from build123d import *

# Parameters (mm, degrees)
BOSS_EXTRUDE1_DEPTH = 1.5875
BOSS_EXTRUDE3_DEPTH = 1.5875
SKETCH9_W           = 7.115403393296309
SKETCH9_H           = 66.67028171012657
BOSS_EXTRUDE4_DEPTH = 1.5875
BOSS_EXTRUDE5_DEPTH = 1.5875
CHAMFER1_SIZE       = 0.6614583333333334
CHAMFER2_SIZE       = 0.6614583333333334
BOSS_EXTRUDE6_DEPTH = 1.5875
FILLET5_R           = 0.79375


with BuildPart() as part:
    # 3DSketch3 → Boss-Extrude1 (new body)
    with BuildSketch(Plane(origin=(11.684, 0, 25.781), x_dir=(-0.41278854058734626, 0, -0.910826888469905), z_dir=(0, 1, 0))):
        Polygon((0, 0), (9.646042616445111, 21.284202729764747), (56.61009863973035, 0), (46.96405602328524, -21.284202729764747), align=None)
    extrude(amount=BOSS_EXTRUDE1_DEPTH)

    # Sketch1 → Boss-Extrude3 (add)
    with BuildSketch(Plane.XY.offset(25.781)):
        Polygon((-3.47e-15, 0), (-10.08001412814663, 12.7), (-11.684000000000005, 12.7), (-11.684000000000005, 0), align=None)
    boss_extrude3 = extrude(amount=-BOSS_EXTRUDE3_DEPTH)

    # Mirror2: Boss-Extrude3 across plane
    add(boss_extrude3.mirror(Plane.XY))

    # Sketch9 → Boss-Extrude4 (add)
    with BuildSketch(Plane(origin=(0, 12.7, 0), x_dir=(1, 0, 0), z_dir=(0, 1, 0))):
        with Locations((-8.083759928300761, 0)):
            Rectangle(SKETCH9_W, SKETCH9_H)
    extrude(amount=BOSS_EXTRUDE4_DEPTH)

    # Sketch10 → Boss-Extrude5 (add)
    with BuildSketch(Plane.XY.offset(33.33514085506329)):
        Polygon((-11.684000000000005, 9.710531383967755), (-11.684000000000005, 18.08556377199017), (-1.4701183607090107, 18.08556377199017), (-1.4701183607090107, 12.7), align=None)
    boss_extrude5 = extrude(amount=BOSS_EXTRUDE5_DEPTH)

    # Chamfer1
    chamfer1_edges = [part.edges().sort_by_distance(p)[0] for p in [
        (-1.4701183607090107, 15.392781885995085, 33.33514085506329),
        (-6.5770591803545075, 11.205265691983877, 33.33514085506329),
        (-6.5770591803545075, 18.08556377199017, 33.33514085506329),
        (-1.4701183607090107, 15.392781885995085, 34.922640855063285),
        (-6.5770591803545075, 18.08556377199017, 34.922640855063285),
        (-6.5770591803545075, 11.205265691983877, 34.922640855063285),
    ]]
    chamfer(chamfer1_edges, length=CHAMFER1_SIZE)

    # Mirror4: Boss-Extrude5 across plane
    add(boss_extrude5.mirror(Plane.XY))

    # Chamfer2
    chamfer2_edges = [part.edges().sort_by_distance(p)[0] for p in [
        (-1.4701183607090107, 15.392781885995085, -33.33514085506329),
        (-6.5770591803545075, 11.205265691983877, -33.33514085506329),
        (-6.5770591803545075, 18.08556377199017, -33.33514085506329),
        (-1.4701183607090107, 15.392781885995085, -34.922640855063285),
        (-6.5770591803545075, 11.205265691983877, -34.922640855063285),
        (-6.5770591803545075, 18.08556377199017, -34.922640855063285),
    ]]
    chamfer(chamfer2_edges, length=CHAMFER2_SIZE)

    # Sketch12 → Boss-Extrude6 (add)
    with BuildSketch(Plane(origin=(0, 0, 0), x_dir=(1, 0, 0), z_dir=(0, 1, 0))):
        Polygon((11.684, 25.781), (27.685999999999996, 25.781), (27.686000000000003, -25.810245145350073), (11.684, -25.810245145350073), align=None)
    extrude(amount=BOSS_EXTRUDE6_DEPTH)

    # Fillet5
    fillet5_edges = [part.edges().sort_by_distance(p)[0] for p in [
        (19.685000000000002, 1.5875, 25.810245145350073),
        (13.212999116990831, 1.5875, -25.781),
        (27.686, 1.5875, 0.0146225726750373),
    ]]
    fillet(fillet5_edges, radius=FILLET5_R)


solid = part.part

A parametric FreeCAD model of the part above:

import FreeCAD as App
import Part
import Sketcher

V = App.Vector
Q = App.Units.Quantity


def edges_at(feature, points):
    """Names of the edges that pass closest to the given points."""
    edges = feature.Shape.Edges
    near = lambda p: min(range(len(edges)), key=lambda i: edges[i].distToShape(Part.Vertex(*p))[0])
    return sorted({f"Edge{near(p) + 1}" for p in points})

doc = App.newDocument("Part")
params = doc.addObject("Spreadsheet::Sheet", "Params")
for row, (alias, value) in enumerate([
    ("sketch1_width", "0.92 in"),
    ("sketch1_height", "2.03 in"),
    ("pad1_length", "0.0625 in"),
    ("sketch2_height", "0.5 in"),
    ("sketch2_width", "0.46 in"),
    ("pad2_length", "0.0625 in"),
    ("pad3_length", "0.0625 in"),
    ("pad4_length", "0.0625 in"),
    ("chamfer_size", "0.661458 mm"),
    ("chamfer2_size", "0.661458 mm"),
    ("sketch5_width", "0.63 in"),
    ("pad5_length", "0.0625 in"),
    ("fillet_radius", "0.03125 in"),
], start=1):
    params.set(f"A{row}", alias)
    params.set(f"B{row}", "=" + value)
    params.setAlias(f"B{row}", alias)

body = doc.addObject("PartDesign::Body", "Body")

sketch1 = body.newObject("Sketcher::SketchObject", "Sketch")
sketch1.AttachmentSupport = (doc.getObject("XZ_Plane"), [""])
sketch1.MapMode = "FlatFace"
sketch1.addGeometry([
    Part.LineSegment(V(-11.684, 25.781, 0), V(11.684, 25.781, 0)),
    Part.LineSegment(V(11.684, 25.781, 0), V(11.684, -25.781, 0)),
    Part.LineSegment(V(11.684, -25.781, 0), V(-11.684, -25.781, 0)),
    Part.LineSegment(V(-11.684, -25.781, 0), V(-11.684, 25.781, 0)),
], False)
sketch1.addConstraint([
    Sketcher.Constraint("Coincident", 0, 2, 1, 1),
    Sketcher.Constraint("Coincident", 1, 2, 2, 1),
    Sketcher.Constraint("Coincident", 2, 2, 3, 1),
    Sketcher.Constraint("Coincident", 3, 2, 0, 1),
    Sketcher.Constraint("Horizontal", 0),
    Sketcher.Constraint("Vertical", 1),
    Sketcher.Constraint("Horizontal", 2),
    Sketcher.Constraint("Vertical", 3),
    Sketcher.Constraint("Symmetric", 0, 2, 2, 2, -1, 1),
    Sketcher.Constraint("DistanceX", 0, 1, 0, 2, Q("0.92 in")),
    Sketcher.Constraint("DistanceY", 1, 2, 1, 1, Q("2.03 in")),
])
sketch1.setExpression("Constraints[9]", "Params.sketch1_width")
sketch1.setExpression("Constraints[10]", "Params.sketch1_height")
pad1 = body.newObject("PartDesign::Pad", "Pad")
pad1.Profile = sketch1
pad1.setExpression("Length", "Params.pad1_length")
pad1.Reversed = True

sketch2 = body.newObject("Sketcher::SketchObject", "Sketch001")
sketch2.AttachmentSupport = (doc.getObject("XY_Plane"), [""])
sketch2.MapMode = "FlatFace"
sketch2.AttachmentOffset = App.Placement(V(0, 0, 1.015 * 25.4), App.Rotation())
sketch2.addGeometry([
    Part.LineSegment(V(0, 0, 0), V(-10.080014, 12.7, 0)),
    Part.LineSegment(V(-10.080014, 12.7, 0), V(-11.684, 12.7, 0)),
    Part.LineSegment(V(-11.684, 12.7, 0), V(-11.684, 0, 0)),
    Part.LineSegment(V(-11.684, 0, 0), V(0, 0, 0)),
], False)
sketch2.addConstraint([
    Sketcher.Constraint("Coincident", 0, 2, 1, 1),
    Sketcher.Constraint("Coincident", 1, 2, 2, 1),
    Sketcher.Constraint("Coincident", 2, 2, 3, 1),
    Sketcher.Constraint("Coincident", 3, 2, 0, 1),
    Sketcher.Constraint("Horizontal", 1),
    Sketcher.Constraint("Vertical", 2),
    Sketcher.Constraint("Horizontal", 3),
    Sketcher.Constraint("Coincident", 3, 2, -1, 1),
    Sketcher.Constraint("DistanceY", 2, 2, 2, 1, Q("0.5 in")),
    Sketcher.Constraint("DistanceX", 3, 1, 3, 2, Q("0.46 in")),
    Sketcher.Constraint("Distance", 0, Q("16.214089 mm")),
])
sketch2.setExpression("Constraints[8]", "Params.sketch2_height")
sketch2.setExpression("Constraints[9]", "Params.sketch2_width")
pad2 = body.newObject("PartDesign::Pad", "Pad001")
pad2.Profile = sketch2
pad2.setExpression("Length", "Params.pad2_length")
pad2.Reversed = True
doc.recompute()

mirrored = body.newObject("PartDesign::Mirrored", "Mirrored")
mirrored.Originals = [pad2]
mirrored.MirrorPlane = (doc.getObject("XY_Plane"), [""])
body.Tip = mirrored

sketch3 = body.newObject("Sketcher::SketchObject", "Sketch002")
sketch3.AttachmentSupport = (doc.getObject("XZ_Plane"), [""])
sketch3.MapMode = "FlatFace"
sketch3.AttachmentOffset = App.Placement(V(0, 0, -0.5 * 25.4), App.Rotation())
sketch3.addGeometry([
    Part.LineSegment(V(-11.641462, -33.335141, 0), V(-11.641462, 33.335141, 0)),
    Part.LineSegment(V(-11.641462, 33.335141, 0), V(-4.526058, 33.335141, 0)),
    Part.LineSegment(V(-4.526058, 33.335141, 0), V(-4.526058, -33.335141, 0)),
    Part.LineSegment(V(-4.526058, -33.335141, 0), V(-11.641462, -33.335141, 0)),
], False)
sketch3.addConstraint([
    Sketcher.Constraint("Coincident", 0, 2, 1, 1),
    Sketcher.Constraint("Coincident", 1, 2, 2, 1),
    Sketcher.Constraint("Coincident", 2, 2, 3, 1),
    Sketcher.Constraint("Coincident", 3, 2, 0, 1),
    Sketcher.Constraint("Vertical", 0),
    Sketcher.Constraint("Horizontal", 1),
    Sketcher.Constraint("Vertical", 2),
    Sketcher.Constraint("Horizontal", 3),
    Sketcher.Constraint("DistanceY", 0, 1, 0, 2, Q("66.670282 mm")),
    Sketcher.Constraint("DistanceX", 1, 1, 1, 2, Q("7.115403 mm")),
    Sketcher.Constraint("DistanceX", 0, 2, -1, 1, Q("11.641462 mm")),
    Sketcher.Constraint("DistanceY", -1, 1, 0, 2, Q("33.335141 mm")),
])
pad3 = body.newObject("PartDesign::Pad", "Pad002")
pad3.Profile = sketch3
pad3.setExpression("Length", "Params.pad3_length")
pad3.Reversed = True

sketch4 = body.newObject("Sketcher::SketchObject", "Sketch003")
sketch4.AttachmentSupport = (doc.getObject("XY_Plane"), [""])
sketch4.MapMode = "FlatFace"
sketch4.AttachmentOffset = App.Placement(V(0, 0, 33.335141), App.Rotation())
sketch4.addGeometry([
    Part.LineSegment(V(-11.684, 18.085564, 0), V(-11.684, 9.710531, 0)),
    Part.LineSegment(V(-11.684, 9.710531, 0), V(-1.470118, 12.7, 0)),
    Part.LineSegment(V(-1.470118, 12.7, 0), V(-1.470118, 18.085564, 0)),
    Part.LineSegment(V(-1.470118, 18.085564, 0), V(-11.684, 18.085564, 0)),
], False)
sketch4.addConstraint([
    Sketcher.Constraint("Coincident", 0, 2, 1, 1),
    Sketcher.Constraint("Coincident", 1, 2, 2, 1),
    Sketcher.Constraint("Coincident", 2, 2, 3, 1),
    Sketcher.Constraint("Coincident", 3, 2, 0, 1),
    Sketcher.Constraint("Vertical", 0),
    Sketcher.Constraint("Vertical", 2),
    Sketcher.Constraint("Horizontal", 3),
    Sketcher.Constraint("DistanceY", -1, 1, 1, 2, Q("0.5 in")),
    Sketcher.Constraint("DistanceX", 0, 2, -1, 1, Q("0.46 in")),
    Sketcher.Constraint("DistanceX", 3, 2, 3, 1, Q("10.213882 mm")),
    Sketcher.Constraint("DistanceY", 0, 2, 0, 1, Q("8.375032 mm")),
    Sketcher.Constraint("DistanceY", 2, 1, 2, 2, Q("5.385564 mm")),
])
pad4 = body.newObject("PartDesign::Pad", "Pad003")
pad4.Profile = sketch4
pad4.setExpression("Length", "Params.pad4_length")
doc.recompute()

chamfer = body.newObject("PartDesign::Chamfer", "Chamfer")
chamfer.Base = (pad4, edges_at(pad4, [
    (-1.47, 15.393, 33.335),
    (-6.577, 11.205, 33.335),
    (-6.577, 18.086, 33.335),
    (-1.47, 15.393, 34.923),
    (-6.577, 18.086, 34.923),
    (-6.577, 11.205, 34.923),
]))
chamfer.setExpression("Size", "Params.chamfer_size")
doc.recompute()

mirrored2 = body.newObject("PartDesign::Mirrored", "Mirrored001")
mirrored2.Originals = [pad4]
mirrored2.MirrorPlane = (doc.getObject("XY_Plane"), [""])
body.Tip = mirrored2
doc.recompute()

chamfer2 = body.newObject("PartDesign::Chamfer", "Chamfer001")
chamfer2.Base = (mirrored2, edges_at(mirrored2, [
    (-1.47, 15.393, -33.335),
    (-6.577, 11.205, -33.335),
    (-6.577, 18.086, -33.335),
    (-1.47, 15.393, -34.923),
    (-6.577, 11.205, -34.923),
    (-6.577, 18.086, -34.923),
]))
chamfer2.setExpression("Size", "Params.chamfer2_size")

sketch5 = body.newObject("Sketcher::SketchObject", "Sketch004")
sketch5.AttachmentSupport = (doc.getObject("XZ_Plane"), [""])
sketch5.MapMode = "FlatFace"
sketch5.addGeometry([
    Part.LineSegment(V(27.686, -25.781, 0), V(11.684, -25.781, 0)),
    Part.LineSegment(V(11.684, -25.781, 0), V(11.684, 25.810245, 0)),
    Part.LineSegment(V(11.684, 25.810245, 0), V(27.686, 25.810245, 0)),
    Part.LineSegment(V(27.686, 25.810245, 0), V(27.686, -25.781, 0)),
], False)
sketch5.addConstraint([
    Sketcher.Constraint("Coincident", 0, 2, 1, 1),
    Sketcher.Constraint("Coincident", 1, 2, 2, 1),
    Sketcher.Constraint("Coincident", 2, 2, 3, 1),
    Sketcher.Constraint("Coincident", 3, 2, 0, 1),
    Sketcher.Constraint("Horizontal", 0),
    Sketcher.Constraint("Vertical", 1),
    Sketcher.Constraint("Horizontal", 2),
    Sketcher.Constraint("Vertical", 3),
    Sketcher.Constraint("DistanceX", 0, 2, 0, 1, Q("0.63 in")),
    Sketcher.Constraint("DistanceX", -1, 1, 0, 2, Q("0.46 in")),
    Sketcher.Constraint("DistanceY", 0, 2, -1, 1, Q("1.015 in")),
    Sketcher.Constraint("DistanceY", 1, 1, 1, 2, Q("51.591245 mm")),
])
sketch5.setExpression("Constraints[8]", "Params.sketch5_width")
pad5 = body.newObject("PartDesign::Pad", "Pad004")
pad5.Profile = sketch5
pad5.setExpression("Length", "Params.pad5_length")
pad5.Reversed = True
doc.recompute()

fillet = body.newObject("PartDesign::Fillet", "Fillet")
fillet.Base = (pad5, edges_at(pad5, [(19.685, 1.587, 25.81), (13.213, 1.587, -25.781), (27.686, 1.587, 0.015)]))
fillet.setExpression("Radius", "Params.fillet_radius")

doc.recompute()
